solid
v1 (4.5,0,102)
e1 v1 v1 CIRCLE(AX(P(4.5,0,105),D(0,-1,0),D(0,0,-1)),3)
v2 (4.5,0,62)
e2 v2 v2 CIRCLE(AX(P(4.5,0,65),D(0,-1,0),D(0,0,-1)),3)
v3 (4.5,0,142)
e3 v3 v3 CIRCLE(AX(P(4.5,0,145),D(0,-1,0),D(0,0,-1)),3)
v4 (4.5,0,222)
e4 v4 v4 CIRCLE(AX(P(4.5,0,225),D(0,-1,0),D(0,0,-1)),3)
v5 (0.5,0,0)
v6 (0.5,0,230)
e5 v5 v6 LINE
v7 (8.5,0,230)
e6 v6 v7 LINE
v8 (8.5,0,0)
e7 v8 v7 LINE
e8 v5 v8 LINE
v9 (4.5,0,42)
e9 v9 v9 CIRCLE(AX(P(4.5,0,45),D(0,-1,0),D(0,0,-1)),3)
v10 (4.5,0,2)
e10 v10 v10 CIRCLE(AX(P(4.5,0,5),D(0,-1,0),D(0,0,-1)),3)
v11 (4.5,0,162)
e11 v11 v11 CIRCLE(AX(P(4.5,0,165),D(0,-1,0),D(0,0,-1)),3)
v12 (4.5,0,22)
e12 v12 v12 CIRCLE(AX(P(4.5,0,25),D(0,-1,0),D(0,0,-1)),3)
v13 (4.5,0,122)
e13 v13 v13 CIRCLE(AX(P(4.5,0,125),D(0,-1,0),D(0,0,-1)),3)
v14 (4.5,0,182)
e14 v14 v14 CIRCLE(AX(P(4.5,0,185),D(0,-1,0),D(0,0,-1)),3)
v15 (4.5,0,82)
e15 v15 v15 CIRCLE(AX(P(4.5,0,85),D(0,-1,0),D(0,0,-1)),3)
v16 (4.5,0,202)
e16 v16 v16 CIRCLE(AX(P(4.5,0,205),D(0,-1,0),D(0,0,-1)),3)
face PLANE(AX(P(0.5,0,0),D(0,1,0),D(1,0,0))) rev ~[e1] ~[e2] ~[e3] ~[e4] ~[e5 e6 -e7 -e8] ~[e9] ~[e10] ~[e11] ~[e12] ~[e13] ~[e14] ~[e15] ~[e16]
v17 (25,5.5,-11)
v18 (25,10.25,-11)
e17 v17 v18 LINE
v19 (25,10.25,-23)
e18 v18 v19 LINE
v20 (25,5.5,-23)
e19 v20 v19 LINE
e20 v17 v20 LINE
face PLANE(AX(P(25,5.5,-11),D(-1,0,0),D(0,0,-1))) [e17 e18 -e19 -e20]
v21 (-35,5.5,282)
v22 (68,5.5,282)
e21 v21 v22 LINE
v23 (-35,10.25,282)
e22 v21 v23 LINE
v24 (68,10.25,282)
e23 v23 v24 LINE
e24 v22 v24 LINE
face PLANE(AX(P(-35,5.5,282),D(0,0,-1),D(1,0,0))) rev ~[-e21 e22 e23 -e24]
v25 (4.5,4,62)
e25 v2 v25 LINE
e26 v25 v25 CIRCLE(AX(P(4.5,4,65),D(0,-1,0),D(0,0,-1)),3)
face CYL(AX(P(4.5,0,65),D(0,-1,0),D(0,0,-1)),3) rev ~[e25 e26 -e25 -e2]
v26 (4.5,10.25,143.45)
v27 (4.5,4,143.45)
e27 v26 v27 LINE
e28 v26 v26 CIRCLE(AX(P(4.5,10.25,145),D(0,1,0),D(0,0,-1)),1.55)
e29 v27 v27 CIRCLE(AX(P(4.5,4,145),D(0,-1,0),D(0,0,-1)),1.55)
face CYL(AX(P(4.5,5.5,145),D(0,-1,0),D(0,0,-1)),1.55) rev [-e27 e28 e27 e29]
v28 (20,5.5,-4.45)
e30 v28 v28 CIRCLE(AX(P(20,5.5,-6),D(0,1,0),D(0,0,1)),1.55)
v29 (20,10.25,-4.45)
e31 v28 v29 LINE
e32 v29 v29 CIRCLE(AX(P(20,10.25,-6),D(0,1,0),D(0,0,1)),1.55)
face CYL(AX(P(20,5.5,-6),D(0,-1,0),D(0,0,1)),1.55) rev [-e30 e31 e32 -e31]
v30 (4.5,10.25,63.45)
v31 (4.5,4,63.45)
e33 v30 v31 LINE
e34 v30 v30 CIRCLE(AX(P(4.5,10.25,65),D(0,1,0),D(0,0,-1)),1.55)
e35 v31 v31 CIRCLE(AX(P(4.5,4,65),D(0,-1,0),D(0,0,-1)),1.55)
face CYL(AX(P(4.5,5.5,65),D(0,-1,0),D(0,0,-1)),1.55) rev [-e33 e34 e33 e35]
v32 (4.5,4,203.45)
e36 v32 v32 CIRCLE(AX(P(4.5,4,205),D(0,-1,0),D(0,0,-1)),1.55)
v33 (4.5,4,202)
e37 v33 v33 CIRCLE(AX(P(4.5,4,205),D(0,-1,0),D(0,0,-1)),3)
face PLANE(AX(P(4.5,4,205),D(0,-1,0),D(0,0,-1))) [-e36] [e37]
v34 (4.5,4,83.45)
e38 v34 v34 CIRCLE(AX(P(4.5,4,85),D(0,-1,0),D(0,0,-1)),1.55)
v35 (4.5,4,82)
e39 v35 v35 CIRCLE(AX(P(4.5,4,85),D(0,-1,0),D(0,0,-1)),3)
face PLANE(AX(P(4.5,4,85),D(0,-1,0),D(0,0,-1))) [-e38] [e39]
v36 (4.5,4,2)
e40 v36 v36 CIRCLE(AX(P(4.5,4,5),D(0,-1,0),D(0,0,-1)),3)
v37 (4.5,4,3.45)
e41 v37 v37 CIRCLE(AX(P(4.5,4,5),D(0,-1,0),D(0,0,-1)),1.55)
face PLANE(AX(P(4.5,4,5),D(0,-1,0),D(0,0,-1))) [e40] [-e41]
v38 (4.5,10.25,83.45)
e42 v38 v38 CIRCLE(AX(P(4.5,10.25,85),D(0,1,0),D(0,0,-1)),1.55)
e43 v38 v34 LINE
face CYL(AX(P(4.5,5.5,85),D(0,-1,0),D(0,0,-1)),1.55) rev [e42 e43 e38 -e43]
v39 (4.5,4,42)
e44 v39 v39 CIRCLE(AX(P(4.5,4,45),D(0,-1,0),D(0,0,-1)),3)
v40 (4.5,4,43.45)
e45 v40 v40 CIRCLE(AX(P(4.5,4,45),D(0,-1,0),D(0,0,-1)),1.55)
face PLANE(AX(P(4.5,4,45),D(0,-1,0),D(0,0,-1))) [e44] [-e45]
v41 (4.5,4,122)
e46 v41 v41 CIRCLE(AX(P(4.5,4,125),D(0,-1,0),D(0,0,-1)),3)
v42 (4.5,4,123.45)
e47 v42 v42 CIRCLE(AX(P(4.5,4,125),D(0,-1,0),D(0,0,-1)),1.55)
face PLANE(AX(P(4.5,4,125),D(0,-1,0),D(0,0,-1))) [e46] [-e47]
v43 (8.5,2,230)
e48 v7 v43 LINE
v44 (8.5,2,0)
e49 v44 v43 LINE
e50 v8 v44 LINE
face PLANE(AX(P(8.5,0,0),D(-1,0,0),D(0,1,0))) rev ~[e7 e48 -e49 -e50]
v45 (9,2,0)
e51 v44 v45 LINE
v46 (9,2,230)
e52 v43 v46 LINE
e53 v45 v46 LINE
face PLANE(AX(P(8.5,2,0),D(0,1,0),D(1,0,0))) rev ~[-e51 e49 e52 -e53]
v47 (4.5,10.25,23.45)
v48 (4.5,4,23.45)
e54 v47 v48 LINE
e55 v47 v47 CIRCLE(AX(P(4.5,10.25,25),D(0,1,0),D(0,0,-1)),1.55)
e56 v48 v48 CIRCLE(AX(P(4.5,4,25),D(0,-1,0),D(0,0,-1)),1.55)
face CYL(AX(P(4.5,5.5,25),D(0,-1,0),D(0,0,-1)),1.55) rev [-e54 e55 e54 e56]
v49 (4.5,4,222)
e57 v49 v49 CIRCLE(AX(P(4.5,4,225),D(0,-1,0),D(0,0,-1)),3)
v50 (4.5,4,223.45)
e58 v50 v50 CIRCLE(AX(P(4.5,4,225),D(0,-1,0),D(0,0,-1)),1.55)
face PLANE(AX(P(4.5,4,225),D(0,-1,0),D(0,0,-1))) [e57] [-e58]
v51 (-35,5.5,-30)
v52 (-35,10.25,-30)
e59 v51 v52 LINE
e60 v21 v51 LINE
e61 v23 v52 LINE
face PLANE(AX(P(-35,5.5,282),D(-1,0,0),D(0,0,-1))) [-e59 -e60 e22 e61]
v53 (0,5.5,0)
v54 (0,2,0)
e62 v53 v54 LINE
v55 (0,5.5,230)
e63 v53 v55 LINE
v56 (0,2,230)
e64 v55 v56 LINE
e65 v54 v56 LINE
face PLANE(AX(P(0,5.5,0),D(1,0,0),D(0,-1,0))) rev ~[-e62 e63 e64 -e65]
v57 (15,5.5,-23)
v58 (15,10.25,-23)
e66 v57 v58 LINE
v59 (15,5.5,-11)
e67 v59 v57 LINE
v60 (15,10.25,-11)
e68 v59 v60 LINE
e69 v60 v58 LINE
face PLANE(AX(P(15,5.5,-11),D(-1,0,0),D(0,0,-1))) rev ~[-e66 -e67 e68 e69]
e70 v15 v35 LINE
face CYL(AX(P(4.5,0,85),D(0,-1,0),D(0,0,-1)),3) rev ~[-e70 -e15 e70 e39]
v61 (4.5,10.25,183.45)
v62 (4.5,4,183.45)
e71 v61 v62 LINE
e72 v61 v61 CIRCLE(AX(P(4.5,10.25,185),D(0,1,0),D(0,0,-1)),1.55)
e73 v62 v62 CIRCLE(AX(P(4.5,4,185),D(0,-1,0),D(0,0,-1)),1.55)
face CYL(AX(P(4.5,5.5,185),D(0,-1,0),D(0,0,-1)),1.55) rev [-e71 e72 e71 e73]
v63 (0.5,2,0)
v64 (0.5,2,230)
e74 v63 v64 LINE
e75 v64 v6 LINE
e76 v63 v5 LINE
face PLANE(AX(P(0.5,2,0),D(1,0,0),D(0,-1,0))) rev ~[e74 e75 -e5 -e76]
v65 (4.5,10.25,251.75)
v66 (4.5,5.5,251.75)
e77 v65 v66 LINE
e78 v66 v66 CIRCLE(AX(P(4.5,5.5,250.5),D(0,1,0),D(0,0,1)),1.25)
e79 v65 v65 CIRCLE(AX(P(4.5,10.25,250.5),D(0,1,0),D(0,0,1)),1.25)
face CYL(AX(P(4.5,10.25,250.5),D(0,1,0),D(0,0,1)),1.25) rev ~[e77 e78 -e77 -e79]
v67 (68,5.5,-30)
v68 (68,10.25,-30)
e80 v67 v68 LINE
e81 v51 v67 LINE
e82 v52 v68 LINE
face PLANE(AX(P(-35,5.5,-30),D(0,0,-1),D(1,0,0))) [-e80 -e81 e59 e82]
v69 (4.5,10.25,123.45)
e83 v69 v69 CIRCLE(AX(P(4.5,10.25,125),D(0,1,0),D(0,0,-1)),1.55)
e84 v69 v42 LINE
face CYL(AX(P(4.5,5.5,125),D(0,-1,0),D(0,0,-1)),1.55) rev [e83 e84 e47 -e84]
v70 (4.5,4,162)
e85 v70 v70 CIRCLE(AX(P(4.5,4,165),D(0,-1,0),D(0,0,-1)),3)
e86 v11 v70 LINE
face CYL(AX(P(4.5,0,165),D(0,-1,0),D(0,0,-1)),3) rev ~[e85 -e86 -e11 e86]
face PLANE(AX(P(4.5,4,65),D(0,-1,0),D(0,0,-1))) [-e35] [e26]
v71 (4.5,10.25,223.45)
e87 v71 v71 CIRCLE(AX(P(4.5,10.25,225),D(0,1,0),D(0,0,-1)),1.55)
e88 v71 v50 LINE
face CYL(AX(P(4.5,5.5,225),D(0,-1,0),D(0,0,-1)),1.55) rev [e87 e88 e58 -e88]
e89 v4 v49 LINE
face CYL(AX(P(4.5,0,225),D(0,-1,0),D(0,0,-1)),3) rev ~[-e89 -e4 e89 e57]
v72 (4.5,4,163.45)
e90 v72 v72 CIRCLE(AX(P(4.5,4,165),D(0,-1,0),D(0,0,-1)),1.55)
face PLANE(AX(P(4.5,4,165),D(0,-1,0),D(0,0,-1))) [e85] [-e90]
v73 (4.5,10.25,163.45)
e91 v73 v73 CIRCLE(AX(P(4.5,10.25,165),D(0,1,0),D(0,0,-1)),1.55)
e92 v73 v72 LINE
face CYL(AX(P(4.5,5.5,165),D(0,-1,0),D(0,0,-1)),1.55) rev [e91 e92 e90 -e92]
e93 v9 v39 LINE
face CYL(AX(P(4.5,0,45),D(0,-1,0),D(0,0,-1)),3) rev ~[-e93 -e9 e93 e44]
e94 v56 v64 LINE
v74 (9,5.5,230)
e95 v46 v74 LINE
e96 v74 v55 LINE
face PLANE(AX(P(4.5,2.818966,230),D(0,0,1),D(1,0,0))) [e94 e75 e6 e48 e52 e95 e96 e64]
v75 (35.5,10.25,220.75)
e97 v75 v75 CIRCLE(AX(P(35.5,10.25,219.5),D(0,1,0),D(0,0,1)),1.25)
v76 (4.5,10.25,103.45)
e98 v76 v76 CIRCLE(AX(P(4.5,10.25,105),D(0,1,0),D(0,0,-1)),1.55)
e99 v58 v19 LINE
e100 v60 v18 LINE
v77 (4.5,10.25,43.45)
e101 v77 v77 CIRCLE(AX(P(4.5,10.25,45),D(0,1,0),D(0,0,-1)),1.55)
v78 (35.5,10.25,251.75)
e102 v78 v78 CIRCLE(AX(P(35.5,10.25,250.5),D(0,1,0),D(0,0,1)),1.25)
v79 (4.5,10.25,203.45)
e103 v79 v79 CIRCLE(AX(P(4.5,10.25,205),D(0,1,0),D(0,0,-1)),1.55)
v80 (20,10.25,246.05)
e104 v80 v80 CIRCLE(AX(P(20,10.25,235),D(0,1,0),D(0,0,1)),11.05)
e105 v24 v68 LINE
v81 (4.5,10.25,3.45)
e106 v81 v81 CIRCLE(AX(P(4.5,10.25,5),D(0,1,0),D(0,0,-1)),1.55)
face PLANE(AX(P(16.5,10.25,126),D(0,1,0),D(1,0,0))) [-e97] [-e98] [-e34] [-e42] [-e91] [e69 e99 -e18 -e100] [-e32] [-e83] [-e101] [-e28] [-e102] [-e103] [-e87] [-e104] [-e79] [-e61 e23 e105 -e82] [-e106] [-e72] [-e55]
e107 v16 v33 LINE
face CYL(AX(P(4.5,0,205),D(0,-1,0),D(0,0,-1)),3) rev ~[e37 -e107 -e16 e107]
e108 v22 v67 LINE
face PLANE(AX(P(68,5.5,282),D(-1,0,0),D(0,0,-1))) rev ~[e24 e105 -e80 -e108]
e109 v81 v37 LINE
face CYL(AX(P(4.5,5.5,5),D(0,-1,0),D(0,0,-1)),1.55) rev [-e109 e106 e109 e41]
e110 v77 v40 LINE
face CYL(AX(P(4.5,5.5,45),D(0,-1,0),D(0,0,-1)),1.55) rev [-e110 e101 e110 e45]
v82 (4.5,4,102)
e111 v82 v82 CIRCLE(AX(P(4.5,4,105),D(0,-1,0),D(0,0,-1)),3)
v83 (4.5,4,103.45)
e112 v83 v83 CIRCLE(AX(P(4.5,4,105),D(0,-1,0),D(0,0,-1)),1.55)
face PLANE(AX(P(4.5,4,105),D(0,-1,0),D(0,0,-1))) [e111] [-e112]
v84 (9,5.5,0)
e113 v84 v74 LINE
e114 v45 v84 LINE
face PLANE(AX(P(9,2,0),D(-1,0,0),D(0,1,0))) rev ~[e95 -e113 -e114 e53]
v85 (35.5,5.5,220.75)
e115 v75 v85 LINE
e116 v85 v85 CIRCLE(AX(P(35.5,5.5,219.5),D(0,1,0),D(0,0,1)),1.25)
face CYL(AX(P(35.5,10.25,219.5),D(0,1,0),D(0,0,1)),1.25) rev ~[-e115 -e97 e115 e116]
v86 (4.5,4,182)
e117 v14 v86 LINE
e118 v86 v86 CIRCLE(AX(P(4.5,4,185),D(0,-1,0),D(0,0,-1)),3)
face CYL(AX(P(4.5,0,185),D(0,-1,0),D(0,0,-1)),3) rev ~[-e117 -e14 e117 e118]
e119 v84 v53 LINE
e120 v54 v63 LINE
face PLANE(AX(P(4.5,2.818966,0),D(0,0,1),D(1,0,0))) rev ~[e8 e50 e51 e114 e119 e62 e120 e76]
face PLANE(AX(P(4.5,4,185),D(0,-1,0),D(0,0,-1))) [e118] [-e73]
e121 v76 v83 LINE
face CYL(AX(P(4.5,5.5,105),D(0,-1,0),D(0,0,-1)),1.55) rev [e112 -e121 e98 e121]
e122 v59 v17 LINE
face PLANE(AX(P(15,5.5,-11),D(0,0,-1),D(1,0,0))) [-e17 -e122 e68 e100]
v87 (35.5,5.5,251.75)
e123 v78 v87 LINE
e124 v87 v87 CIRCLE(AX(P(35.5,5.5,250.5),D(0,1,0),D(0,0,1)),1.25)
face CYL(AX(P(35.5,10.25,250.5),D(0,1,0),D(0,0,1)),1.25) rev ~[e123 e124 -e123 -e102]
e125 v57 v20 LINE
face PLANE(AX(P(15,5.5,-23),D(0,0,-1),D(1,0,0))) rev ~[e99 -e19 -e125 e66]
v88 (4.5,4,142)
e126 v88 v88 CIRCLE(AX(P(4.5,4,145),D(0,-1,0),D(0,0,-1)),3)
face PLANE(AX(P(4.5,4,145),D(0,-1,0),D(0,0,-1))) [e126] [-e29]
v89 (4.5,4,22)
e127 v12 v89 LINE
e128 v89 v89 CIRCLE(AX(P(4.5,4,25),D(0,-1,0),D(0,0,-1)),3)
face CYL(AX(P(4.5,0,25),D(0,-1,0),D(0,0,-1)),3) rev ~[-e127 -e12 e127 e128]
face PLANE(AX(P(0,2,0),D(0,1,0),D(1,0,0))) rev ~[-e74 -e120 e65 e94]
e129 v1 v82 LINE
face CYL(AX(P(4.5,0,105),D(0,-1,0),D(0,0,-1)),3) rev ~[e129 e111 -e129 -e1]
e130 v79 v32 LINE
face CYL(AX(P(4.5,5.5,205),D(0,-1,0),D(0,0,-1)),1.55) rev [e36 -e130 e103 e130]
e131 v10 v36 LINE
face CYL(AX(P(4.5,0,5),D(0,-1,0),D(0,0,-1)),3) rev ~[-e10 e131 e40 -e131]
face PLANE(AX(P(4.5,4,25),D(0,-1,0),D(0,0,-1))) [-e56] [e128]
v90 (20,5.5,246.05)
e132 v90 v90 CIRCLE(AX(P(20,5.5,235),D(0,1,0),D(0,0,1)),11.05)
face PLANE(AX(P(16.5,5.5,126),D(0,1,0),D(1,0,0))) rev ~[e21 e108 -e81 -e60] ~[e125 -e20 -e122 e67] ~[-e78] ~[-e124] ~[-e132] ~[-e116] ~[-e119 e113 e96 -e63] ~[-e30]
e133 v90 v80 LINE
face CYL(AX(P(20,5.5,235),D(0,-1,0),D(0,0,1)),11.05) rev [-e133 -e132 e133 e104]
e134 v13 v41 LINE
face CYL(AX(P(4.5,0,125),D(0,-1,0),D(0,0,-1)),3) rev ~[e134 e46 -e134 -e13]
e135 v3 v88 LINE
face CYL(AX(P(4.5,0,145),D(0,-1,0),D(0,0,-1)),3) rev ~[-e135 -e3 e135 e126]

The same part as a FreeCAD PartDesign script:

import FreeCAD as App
import Part
import Sketcher

V = App.Vector


def add_polygon(sketch, points):
    """Adds a closed chain of lines whose ends are joined by coincident constraints."""
    first, n = sketch.GeometryCount, len(points)
    for a, b in zip(points, points[1:] + points[:1]):
        sketch.addGeometry(Part.LineSegment(App.Vector(*a, 0), App.Vector(*b, 0)), False)
    for i in range(n):
        sketch.addConstraint(Sketcher.Constraint("Coincident", first + i, 2, first + (i + 1) % n, 1))

doc = App.newDocument("Part")
body = doc.addObject("PartDesign::Body", "Body")

# Sketch on XY plane
sketch1 = body.newObject("Sketcher::SketchObject", "Sketch")
sketch1.AttachmentSupport = (doc.getObject("XY_Plane"), [""])
sketch1.MapMode = "FlatFace"
add_polygon(sketch1, [(0.5, 2), (0.5, 0), (8.5, 0), (8.5, 2), (9, 2), (9, 5.5), (0, 5.5), (0, 2)])  # lines 0-7
sketch1.addConstraint(Sketcher.Constraint("Vertical", 0))
sketch1.addConstraint(Sketcher.Constraint("Horizontal", 1))
sketch1.addConstraint(Sketcher.Constraint("Vertical", 2))
sketch1.addConstraint(Sketcher.Constraint("Horizontal", 3))
sketch1.addConstraint(Sketcher.Constraint("Vertical", 4))
sketch1.addConstraint(Sketcher.Constraint("Horizontal", 5))
sketch1.addConstraint(Sketcher.Constraint("Vertical", 6))
sketch1.addConstraint(Sketcher.Constraint("Horizontal", 7))
sketch1.addConstraint(Sketcher.Constraint("PointOnObject", 0, 2, -1))
sketch1.addConstraint(Sketcher.Constraint("PointOnObject", 5, 2, -2))
sketch1.addConstraint(Sketcher.Constraint("Horizontal", 3, 2, 6, 2))
sketch1.addConstraint(Sketcher.Constraint("Equal", 3, 7))
sketch1.addConstraint(Sketcher.Constraint("DistanceX", 1, 1, 1, 2, 8.0))
sketch1.addConstraint(Sketcher.Constraint("DistanceX", 5, 2, 5, 1, 9.0))
sketch1.addConstraint(Sketcher.Constraint("DistanceY", 0, 2, 0, 1, 2.0))
sketch1.addConstraint(Sketcher.Constraint("DistanceY", 4, 1, 4, 2, 3.5))
pad1 = body.newObject("PartDesign::Pad", "Pad")
pad1.Profile = sketch1
pad1.Length = 230

# Sketch on XZ plane
sketch2 = body.newObject("Sketcher::SketchObject", "Sketch001")
sketch2.AttachmentSupport = (doc.getObject("XZ_Plane"), [""])
sketch2.MapMode = "FlatFace"
sketch2.addGeometry(Part.Circle(V(4.5, 225, 0), V(0, 0, 1), 3), False)
sketch2.addConstraint(Sketcher.Constraint("Diameter", 0, 6.0))
sketch2.addConstraint(Sketcher.Constraint("DistanceY", -1, 1, 0, 3, 225.0))
sketch2.addConstraint(Sketcher.Constraint("DistanceX", -1, 1, 0, 3, 4.5))
pocket1 = body.newObject("PartDesign::Pocket", "Pocket")
pocket1.Profile = sketch2
pocket1.Length = 4

# Sketch on XZ plane
sketch3 = body.newObject("Sketcher::SketchObject", "Sketch002")
sketch3.AttachmentSupport = (doc.getObject("XZ_Plane"), [""])
sketch3.MapMode = "FlatFace"
sketch3.AttachmentOffset = App.Placement(V(0, 0, -4), App.Rotation())
sketch3.addGeometry(Part.Circle(V(4.5, 225, 0), V(0, 0, 1), 1.6), False)
sketch3.addConstraint(Sketcher.Constraint("Diameter", 0, 3.1))
sketch3.addConstraint(Sketcher.Constraint("DistanceY", -1, 1, 0, 3, 225.0))
sketch3.addConstraint(Sketcher.Constraint("DistanceX", -1, 1, 0, 3, 4.5))
pocket2 = body.newObject("PartDesign::Pocket", "Pocket001")
pocket2.Profile = sketch3
pocket2.Length = 4
doc.recompute()

linearpattern = body.newObject("PartDesign::LinearPattern", "LinearPattern")
linearpattern.Originals = [pocket1, pocket2]
linearpattern.Direction = (doc.getObject("Z_Axis"), [""])
linearpattern.Mode = "offset"
linearpattern.Offset = 20
linearpattern.Occurrences = 12
linearpattern.Reversed = True
body.Tip = linearpattern

# Sketch on XZ plane
sketch4 = body.newObject("Sketcher::SketchObject", "Sketch003")
sketch4.AttachmentSupport = (doc.getObject("XZ_Plane"), [""])
sketch4.MapMode = "FlatFace"
sketch4.AttachmentOffset = App.Placement(V(0, 0, -5.5), App.Rotation())
add_polygon(sketch4, [(-35, -30), (-35, 282), (68, 282), (68, -30)])  # lines 0-3
sketch4.addGeometry(Part.Circle(V(4.5, 225, 0), V(0, 0, 1), 1.6), False)  # 4
sketch4.addGeometry(Part.Circle(V(4.5, 205, 0), V(0, 0, 1), 1.6), False)  # 5
sketch4.addGeometry(Part.Circle(V(4.5, 185, 0), V(0, 0, 1), 1.6), False)  # 6
sketch4.addGeometry(Part.Circle(V(4.5, 165, 0), V(0, 0, 1), 1.6), False)  # 7
sketch4.addGeometry(Part.Circle(V(4.5, 145, 0), V(0, 0, 1), 1.6), False)  # 8
sketch4.addGeometry(Part.Circle(V(4.5, 125, 0), V(0, 0, 1), 1.6), False)  # 9
sketch4.addGeometry(Part.Circle(V(20, 235, 0), V(0, 0, 1), 11.1), False)  # 10
sketch4.addGeometry(Part.Circle(V(4.5, 105, 0), V(0, 0, 1), 1.6), False)  # 11
sketch4.addGeometry(Part.Circle(V(4.5, 85, 0), V(0, 0, 1), 1.6), False)  # 12
sketch4.addGeometry(Part.Circle(V(4.5, 65, 0), V(0, 0, 1), 1.6), False)  # 13
sketch4.addGeometry(Part.Circle(V(4.5, 45, 0), V(0, 0, 1), 1.6), False)  # 14
sketch4.addGeometry(Part.Circle(V(4.5, 25, 0), V(0, 0, 1), 1.6), False)  # 15
sketch4.addGeometry(Part.Circle(V(4.5, 5, 0), V(0, 0, 1), 1.6), False)  # 16
sketch4.addGeometry(Part.Circle(V(20, -6, 0), V(0, 0, 1), 1.6), False)  # 17
add_polygon(sketch4, [(25, -11), (15, -11), (15, -23), (25, -23)])  # lines 18-21
sketch4.addConstraint(Sketcher.Constraint("Vertical", 0))
sketch4.addConstraint(Sketcher.Constraint("Horizontal", 1))
sketch4.addConstraint(Sketcher.Constraint("Vertical", 2))
sketch4.addConstraint(Sketcher.Constraint("Horizontal", 3))
sketch4.addConstraint(Sketcher.Constraint("Horizontal", 18))
sketch4.addConstraint(Sketcher.Constraint("Vertical", 19))
sketch4.addConstraint(Sketcher.Constraint("Horizontal", 20))
sketch4.addConstraint(Sketcher.Constraint("Vertical", 21))
sketch4.addConstraint(Sketcher.Constraint("Equal", 4, 5))
sketch4.addConstraint(Sketcher.Constraint("Equal", 5, 6))
sketch4.addConstraint(Sketcher.Constraint("Equal", 6, 7))
sketch4.addConstraint(Sketcher.Constraint("Equal", 7, 8))
sketch4.addConstraint(Sketcher.Constraint("Equal", 8, 9))
sketch4.addConstraint(Sketcher.Constraint("Equal", 9, 11))
sketch4.addConstraint(Sketcher.Constraint("Equal", 11, 12))
sketch4.addConstraint(Sketcher.Constraint("Equal", 12, 13))
sketch4.addConstraint(Sketcher.Constraint("Equal", 13, 14))
sketch4.addConstraint(Sketcher.Constraint("Equal", 14, 15))
sketch4.addConstraint(Sketcher.Constraint("Equal", 15, 16))
sketch4.addConstraint(Sketcher.Constraint("Equal", 16, 17))
sketch4.addConstraint(Sketcher.Constraint("Vertical", 4, 3, 5, 3))
sketch4.addConstraint(Sketcher.Constraint("Vertical", 5, 3, 6, 3))
sketch4.addConstraint(Sketcher.Constraint("Vertical", 6, 3, 7, 3))
sketch4.addConstraint(Sketcher.Constraint("Vertical", 7, 3, 8, 3))
sketch4.addConstraint(Sketcher.Constraint("Vertical", 8, 3, 9, 3))
sketch4.addConstraint(Sketcher.Constraint("Vertical", 9, 3, 11, 3))
sketch4.addConstraint(Sketcher.Constraint("Vertical", 11, 3, 12, 3))
sketch4.addConstraint(Sketcher.Constraint("Vertical", 12, 3, 13, 3))
sketch4.addConstraint(Sketcher.Constraint("Vertical", 13, 3, 14, 3))
sketch4.addConstraint(Sketcher.Constraint("Vertical", 14, 3, 15, 3))
sketch4.addConstraint(Sketcher.Constraint("Vertical", 15, 3, 16, 3))
sketch4.addConstraint(Sketcher.Constraint("Vertical", 10, 3, 17, 3))
sketch4.addConstraint(Sketcher.Constraint("Diameter", 4, 3.1))
sketch4.addConstraint(Sketcher.Constraint("Diameter", 10, 22.1))
sketch4.addConstraint(Sketcher.Constraint("DistanceX", 1, 1, 1, 2, 103.0))
sketch4.addConstraint(Sketcher.Constraint("DistanceX", 18, 2, 18, 1, 10.0))
sketch4.addConstraint(Sketcher.Constraint("DistanceY", 0, 1, 0, 2, 312.0))
sketch4.addConstraint(Sketcher.Constraint("DistanceY", 19, 2, 19, 1, 12.0))
sketch4.addConstraint(Sketcher.Constraint("DistanceY", -1, 1, 4, 3, 225.0))
sketch4.addConstraint(Sketcher.Constraint("DistanceY", -1, 1, 5, 3, 205.0))
sketch4.addConstraint(Sketcher.Constraint("DistanceY", -1, 1, 6, 3, 185.0))
sketch4.addConstraint(Sketcher.Constraint("DistanceY", -1, 1, 7, 3, 165.0))
sketch4.addConstraint(Sketcher.Constraint("DistanceY", -1, 1, 8, 3, 145.0))
sketch4.addConstraint(Sketcher.Constraint("DistanceY", -1, 1, 9, 3, 125.0))
sketch4.addConstraint(Sketcher.Constraint("DistanceX", -1, 1, 10, 3, 20.0))
sketch4.addConstraint(Sketcher.Constraint("DistanceY", -1, 1, 10, 3, 235.0))
sketch4.addConstraint(Sketcher.Constraint("DistanceY", -1, 1, 11, 3, 105.0))
sketch4.addConstraint(Sketcher.Constraint("DistanceY", -1, 1, 12, 3, 85.0))
sketch4.addConstraint(Sketcher.Constraint("DistanceY", -1, 1, 13, 3, 65.0))
sketch4.addConstraint(Sketcher.Constraint("DistanceY", -1, 1, 14, 3, 45.0))
sketch4.addConstraint(Sketcher.Constraint("DistanceY", -1, 1, 15, 3, 25.0))
sketch4.addConstraint(Sketcher.Constraint("DistanceY", -1, 1, 16, 3, 5.0))
sketch4.addConstraint(Sketcher.Constraint("DistanceY", 17, 3, -1, 1, 6.0))
sketch4.addConstraint(Sketcher.Constraint("DistanceX", 0, 2, -1, 1, 35.0))
sketch4.addConstraint(Sketcher.Constraint("DistanceY", -1, 1, 0, 2, 282.0))
sketch4.addConstraint(Sketcher.Constraint("DistanceX", -1, 1, 18, 2, 15.0))
sketch4.addConstraint(Sketcher.Constraint("DistanceY", 18, 2, -1, 1, 11.0))
sketch4.addConstraint(Sketcher.Constraint("DistanceX", -1, 1, 4, 3, 4.5))
pad2 = body.newObject("PartDesign::Pad", "Pad001")
pad2.Profile = sketch4
pad2.Length = 4.75
pad2.Reversed = True

# Sketch on XZ plane
sketch5 = body.newObject("Sketcher::SketchObject", "Sketch004")
sketch5.AttachmentSupport = (doc.getObject("XZ_Plane"), [""])
sketch5.MapMode = "FlatFace"
sketch5.AttachmentOffset = App.Placement(V(0, 0, -10.25), App.Rotation())
sketch5.addGeometry(Part.Circle(V(35.5, 250.5, 0), V(0, 0, 1), 1.2), False)
sketch5.addGeometry(Part.Circle(V(4.5, 250.5, 0), V(0, 0, 1), 1.2), False)
sketch5.addGeometry(Part.Circle(V(35.5, 219.5, 0), V(0, 0, 1), 1.2), False)
sketch5.addConstraint(Sketcher.Constraint("Equal", 0, 1))
sketch5.addConstraint(Sketcher.Constraint("Equal", 1, 2))
sketch5.addConstraint(Sketcher.Constraint("Horizontal", 0, 3, 1, 3))
sketch5.addConstraint(Sketcher.Constraint("Vertical", 0, 3, 2, 3))
sketch5.addConstraint(Sketcher.Constraint("Diameter", 0, 2.5))
sketch5.addConstraint(Sketcher.Constraint("DistanceX", 1, 3, 0, 3, 31.0))
sketch5.addConstraint(Sketcher.Constraint("DistanceY", 2, 3, 0, 3, 31.0))
sketch5.addConstraint(Sketcher.Constraint("DistanceX", -1, 1, 0, 3, 35.5))
sketch5.addConstraint(Sketcher.Constraint("DistanceY", -1, 1, 0, 3, 250.5))
pocket3 = body.newObject("PartDesign::Pocket", "Pocket002")
pocket3.Profile = sketch5
pocket3.Length = 10
pocket3.Reversed = True

doc.recompute()
